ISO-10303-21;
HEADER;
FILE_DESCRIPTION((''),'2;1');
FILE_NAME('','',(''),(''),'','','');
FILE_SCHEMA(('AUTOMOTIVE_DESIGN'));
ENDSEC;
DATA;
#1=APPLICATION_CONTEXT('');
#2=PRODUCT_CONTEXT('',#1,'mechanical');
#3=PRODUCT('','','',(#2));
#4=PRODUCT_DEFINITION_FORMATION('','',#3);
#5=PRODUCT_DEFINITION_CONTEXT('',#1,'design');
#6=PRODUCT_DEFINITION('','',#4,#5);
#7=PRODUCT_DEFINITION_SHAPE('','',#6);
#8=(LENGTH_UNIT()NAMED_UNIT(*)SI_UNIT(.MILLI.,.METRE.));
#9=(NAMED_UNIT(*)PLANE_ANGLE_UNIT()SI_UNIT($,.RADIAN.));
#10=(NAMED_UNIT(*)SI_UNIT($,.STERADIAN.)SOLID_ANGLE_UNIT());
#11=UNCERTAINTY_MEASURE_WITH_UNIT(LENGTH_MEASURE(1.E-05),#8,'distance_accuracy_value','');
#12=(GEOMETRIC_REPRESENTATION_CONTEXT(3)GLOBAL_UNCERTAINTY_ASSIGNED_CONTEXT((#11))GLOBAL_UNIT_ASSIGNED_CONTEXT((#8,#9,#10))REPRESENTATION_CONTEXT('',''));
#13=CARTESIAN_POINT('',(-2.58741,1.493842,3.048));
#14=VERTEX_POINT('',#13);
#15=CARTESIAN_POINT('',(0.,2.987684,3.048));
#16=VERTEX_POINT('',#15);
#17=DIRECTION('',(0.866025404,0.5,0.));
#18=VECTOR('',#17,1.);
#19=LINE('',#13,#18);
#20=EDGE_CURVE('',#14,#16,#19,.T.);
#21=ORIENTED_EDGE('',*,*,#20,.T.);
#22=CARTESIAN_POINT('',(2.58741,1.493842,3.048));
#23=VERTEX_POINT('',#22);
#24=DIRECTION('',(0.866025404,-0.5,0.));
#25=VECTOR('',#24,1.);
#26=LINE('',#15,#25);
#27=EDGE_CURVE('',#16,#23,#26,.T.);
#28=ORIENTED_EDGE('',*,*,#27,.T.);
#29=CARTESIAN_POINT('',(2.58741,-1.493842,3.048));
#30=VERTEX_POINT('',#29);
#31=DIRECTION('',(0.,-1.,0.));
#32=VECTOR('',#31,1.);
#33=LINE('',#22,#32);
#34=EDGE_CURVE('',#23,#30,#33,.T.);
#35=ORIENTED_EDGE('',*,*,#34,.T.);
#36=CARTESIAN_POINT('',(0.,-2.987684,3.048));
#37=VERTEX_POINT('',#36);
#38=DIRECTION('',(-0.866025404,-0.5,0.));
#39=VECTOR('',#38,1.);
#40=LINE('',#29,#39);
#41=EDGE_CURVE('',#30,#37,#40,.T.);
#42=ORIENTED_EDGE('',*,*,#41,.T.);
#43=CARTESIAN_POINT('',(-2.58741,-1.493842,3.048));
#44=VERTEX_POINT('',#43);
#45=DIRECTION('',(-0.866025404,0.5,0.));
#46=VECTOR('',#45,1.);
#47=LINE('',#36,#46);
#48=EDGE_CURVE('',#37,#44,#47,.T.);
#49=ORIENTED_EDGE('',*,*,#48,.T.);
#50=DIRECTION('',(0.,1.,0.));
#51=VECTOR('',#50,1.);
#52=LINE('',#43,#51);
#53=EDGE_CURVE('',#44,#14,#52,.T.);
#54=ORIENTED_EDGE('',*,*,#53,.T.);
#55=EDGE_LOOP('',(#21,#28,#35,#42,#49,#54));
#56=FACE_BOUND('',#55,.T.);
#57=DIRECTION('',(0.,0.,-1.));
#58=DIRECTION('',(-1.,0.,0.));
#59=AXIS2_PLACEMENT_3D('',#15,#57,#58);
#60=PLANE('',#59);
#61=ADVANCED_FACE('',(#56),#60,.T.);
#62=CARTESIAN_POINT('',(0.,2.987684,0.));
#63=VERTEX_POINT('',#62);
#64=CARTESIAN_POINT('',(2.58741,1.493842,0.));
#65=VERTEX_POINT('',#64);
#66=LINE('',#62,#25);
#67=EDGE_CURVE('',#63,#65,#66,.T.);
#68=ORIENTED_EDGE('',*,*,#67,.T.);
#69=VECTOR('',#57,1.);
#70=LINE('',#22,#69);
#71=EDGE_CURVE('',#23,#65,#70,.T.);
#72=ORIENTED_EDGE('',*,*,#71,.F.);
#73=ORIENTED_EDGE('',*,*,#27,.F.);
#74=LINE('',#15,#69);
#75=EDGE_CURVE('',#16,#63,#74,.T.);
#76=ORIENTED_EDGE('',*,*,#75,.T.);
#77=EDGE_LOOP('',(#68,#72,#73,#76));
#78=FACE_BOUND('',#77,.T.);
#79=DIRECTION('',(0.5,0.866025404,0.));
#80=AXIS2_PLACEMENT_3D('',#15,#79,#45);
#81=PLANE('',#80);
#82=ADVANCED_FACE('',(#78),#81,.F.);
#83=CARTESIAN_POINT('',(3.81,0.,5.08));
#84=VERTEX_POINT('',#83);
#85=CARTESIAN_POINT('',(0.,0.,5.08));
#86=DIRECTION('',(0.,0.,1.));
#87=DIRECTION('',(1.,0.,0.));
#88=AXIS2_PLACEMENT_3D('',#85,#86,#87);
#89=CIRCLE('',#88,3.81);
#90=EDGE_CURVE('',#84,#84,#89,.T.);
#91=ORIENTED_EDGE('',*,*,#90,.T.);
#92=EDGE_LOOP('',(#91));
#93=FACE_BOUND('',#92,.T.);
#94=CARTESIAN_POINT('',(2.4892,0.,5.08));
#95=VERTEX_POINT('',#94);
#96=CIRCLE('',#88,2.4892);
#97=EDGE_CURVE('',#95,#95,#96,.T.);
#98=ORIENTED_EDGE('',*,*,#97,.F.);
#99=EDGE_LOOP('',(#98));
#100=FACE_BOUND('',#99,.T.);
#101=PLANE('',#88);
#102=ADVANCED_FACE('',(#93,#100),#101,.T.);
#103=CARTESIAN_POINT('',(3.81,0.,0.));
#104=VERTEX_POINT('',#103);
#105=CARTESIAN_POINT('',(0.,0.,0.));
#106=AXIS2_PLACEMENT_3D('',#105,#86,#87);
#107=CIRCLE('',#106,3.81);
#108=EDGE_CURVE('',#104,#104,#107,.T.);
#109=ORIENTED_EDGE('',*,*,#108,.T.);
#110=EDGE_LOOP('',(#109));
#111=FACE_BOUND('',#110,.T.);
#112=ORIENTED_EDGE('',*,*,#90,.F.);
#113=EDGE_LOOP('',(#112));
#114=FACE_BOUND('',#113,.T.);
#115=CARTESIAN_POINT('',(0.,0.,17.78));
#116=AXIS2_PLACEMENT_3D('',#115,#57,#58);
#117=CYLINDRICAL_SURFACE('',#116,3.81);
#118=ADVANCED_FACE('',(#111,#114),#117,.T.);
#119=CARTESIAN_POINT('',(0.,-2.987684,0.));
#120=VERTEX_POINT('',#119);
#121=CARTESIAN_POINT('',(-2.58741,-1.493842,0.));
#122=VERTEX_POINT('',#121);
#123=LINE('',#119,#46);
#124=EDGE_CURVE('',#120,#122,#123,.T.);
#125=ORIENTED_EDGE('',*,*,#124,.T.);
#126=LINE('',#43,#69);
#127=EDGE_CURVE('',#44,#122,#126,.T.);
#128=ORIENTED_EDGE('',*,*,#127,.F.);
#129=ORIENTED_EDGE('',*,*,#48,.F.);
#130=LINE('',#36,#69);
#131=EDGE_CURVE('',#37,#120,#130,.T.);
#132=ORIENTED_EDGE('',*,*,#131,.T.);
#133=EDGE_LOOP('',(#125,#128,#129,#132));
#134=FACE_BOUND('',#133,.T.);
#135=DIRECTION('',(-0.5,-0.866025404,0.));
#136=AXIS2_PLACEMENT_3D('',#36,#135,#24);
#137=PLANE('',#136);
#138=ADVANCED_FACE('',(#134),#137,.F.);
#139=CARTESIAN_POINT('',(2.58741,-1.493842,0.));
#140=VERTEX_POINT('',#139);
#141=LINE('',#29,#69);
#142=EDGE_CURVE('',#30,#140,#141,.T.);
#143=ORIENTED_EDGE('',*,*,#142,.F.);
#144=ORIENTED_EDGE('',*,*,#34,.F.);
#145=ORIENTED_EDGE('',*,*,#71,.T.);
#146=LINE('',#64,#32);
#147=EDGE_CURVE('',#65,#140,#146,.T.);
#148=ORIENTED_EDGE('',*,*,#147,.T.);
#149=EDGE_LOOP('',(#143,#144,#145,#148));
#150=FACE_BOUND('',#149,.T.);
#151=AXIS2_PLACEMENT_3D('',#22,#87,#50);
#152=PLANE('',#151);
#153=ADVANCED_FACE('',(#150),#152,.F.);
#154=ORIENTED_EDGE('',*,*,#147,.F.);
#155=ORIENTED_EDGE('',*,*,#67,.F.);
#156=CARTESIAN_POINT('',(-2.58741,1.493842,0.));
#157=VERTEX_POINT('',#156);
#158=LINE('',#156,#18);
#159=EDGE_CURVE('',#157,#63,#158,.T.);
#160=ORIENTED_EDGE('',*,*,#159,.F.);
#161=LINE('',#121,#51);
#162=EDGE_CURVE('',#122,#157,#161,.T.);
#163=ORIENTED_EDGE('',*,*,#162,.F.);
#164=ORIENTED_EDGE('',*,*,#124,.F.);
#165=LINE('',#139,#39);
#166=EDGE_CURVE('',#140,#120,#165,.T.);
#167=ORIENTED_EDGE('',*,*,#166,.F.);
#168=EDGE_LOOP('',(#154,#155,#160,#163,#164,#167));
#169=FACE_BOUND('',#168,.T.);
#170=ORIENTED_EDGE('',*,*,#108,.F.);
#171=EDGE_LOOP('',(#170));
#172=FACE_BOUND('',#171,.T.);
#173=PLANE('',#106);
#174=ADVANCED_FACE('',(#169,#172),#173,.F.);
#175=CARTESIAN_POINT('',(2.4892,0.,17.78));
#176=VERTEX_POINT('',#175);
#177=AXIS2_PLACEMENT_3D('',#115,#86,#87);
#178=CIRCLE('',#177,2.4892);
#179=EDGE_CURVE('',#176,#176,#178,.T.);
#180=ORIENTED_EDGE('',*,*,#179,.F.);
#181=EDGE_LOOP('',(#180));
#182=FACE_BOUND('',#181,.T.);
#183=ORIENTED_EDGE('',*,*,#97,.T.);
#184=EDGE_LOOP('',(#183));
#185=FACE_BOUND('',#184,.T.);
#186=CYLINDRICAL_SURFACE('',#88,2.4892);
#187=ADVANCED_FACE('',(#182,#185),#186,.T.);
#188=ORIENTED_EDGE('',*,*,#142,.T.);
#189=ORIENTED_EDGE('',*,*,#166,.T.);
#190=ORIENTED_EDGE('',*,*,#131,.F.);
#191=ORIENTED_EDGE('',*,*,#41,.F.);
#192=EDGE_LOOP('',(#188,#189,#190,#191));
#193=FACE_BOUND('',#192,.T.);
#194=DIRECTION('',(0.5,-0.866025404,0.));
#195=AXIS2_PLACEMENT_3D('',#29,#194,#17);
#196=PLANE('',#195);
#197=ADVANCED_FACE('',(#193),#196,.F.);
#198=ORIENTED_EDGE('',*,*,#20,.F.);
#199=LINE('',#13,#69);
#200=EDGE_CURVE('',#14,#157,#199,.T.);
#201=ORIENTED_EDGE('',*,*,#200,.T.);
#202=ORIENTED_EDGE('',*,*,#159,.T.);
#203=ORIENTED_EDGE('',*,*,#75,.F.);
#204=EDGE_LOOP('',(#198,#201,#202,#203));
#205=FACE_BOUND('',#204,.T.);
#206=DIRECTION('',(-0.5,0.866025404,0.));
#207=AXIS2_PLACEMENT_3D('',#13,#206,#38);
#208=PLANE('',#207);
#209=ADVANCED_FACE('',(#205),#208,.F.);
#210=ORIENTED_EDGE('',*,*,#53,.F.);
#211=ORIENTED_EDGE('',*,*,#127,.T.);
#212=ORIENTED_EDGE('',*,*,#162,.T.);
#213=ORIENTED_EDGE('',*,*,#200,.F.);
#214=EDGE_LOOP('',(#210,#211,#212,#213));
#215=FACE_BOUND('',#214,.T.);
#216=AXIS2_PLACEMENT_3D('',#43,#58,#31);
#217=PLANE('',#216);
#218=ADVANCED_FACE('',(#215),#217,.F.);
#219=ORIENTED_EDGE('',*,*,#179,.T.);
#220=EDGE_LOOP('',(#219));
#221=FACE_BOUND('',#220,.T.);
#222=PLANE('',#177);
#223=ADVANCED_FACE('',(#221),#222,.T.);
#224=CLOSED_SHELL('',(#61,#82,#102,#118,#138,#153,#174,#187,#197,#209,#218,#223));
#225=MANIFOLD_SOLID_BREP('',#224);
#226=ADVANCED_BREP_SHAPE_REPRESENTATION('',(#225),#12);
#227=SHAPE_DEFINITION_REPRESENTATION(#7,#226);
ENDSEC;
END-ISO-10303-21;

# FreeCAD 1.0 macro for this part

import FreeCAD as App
import Part
import Sketcher
Q = App.Units.Quantity


def add_polygon(sketch, points):
    """Adds a closed chain of lines whose ends are joined by coincident constraints."""
    first, n = sketch.GeometryCount, len(points)
    for a, b in zip(points, points[1:] + points[:1]):
        sketch.addGeometry(Part.LineSegment(App.Vector(*a, 0), App.Vector(*b, 0)), False)
    for i in range(n):
        sketch.addConstraint(Sketcher.Constraint("Coincident", first + i, 2, first + (i + 1) % n, 1))

doc = App.newDocument("Part")
params = doc.addObject("Spreadsheet::Sheet", "Params")
for row, (alias, value) in enumerate([
    ("sketch1_diameter", "0.3 in"),
    ("pad1_length", "0.7 in"),
    ("sketch2_diameter", "0.196 in"),
    ("pocket1_length", "0.5 in"),
    ("pocket2_length", "0.12 in"),
], start=1):
    params.set(f"A{row}", alias)
    params.set(f"B{row}", "=" + value)
    params.setAlias(f"B{row}", alias)

body = doc.addObject("PartDesign::Body", "Body")

# Sketch on XY plane
sketch1 = doc.addObject("Sketcher::SketchObject", "Sketch")
body.addObject(sketch1)
sketch1.AttachmentSupport = (doc.XY_Plane, [""])
sketch1.MapMode = "FlatFace"
sketch1.addGeometry(Part.Circle(App.Vector(0, 0, 0), App.Vector(0, 0, 1), 3.8), False)
sketch1.addConstraint(Sketcher.Constraint("Coincident", 0, 3, -1, 1))
sketch1.addConstraint(Sketcher.Constraint("Diameter", 0, Q("0.3 in")))
sketch1.setExpression("Constraints[1]", "Params.sketch1_diameter")
pad1 = doc.addObject("PartDesign::Pad", "Pad")
body.addObject(pad1)
pad1.Profile = sketch1
pad1.setExpression("Length", "Params.pad1_length")

# Sketch on XY plane
sketch2 = doc.addObject("Sketcher::SketchObject", "Sketch001")
body.addObject(sketch2)
sketch2.AttachmentSupport = (doc.XY_Plane, [""])
sketch2.MapMode = "FlatFace"
sketch2.AttachmentOffset = App.Placement(App.Vector(0, 0, 0.7 * 25.4), App.Rotation())
add_polygon(sketch2, [(-6.9, 6.9), (-6.9, -6.9), (6.9, -6.9), (6.9, 6.9)])  # lines 0-3
sketch2.addGeometry(Part.Circle(App.Vector(0, 0, 0), App.Vector(0, 0, 1), 2.5), False)  # 4
sketch2.addConstraint(Sketcher.Constraint("Vertical", 0))
sketch2.addConstraint(Sketcher.Constraint("Horizontal", 1))
sketch2.addConstraint(Sketcher.Constraint("Vertical", 2))
sketch2.addConstraint(Sketcher.Constraint("Horizontal", 3))
sketch2.addConstraint(Sketcher.Constraint("Coincident", 4, 3, -1, 1))
sketch2.addConstraint(Sketcher.Constraint("Symmetric", 0, 2, 2, 2, -1, 1))
sketch2.addConstraint(Sketcher.Constraint("Equal", 3, 0))
sketch2.addConstraint(Sketcher.Constraint("Diameter", 4, Q("0.196 in")))
sketch2.addConstraint(Sketcher.Constraint("DistanceX", 1, 1, 1, 2, Q("13.778 mm")))
sketch2.setExpression("Constraints[11]", "Params.sketch2_diameter")
pocket1 = doc.addObject("PartDesign::Pocket", "Pocket")
body.addObject(pocket1)
pocket1.Profile = sketch2
pocket1.setExpression("Length", "Params.pocket1_length")

# Sketch on XY plane
sketch3 = doc.addObject("Sketcher::SketchObject", "Sketch002")
body.addObject(sketch3)
sketch3.AttachmentSupport = (doc.XY_Plane, [""])
sketch3.MapMode = "FlatFace"
add_polygon(sketch3, [(0, 3), (2.6, 1.5), (2.6, -1.5), (0, -3), (-2.6, -1.5), (-2.6, 1.5)])  # lines 0-5
sketch3.addConstraint(Sketcher.Constraint("Vertical", 1))
sketch3.addConstraint(Sketcher.Constraint("Vertical", 4))
sketch3.addConstraint(Sketcher.Constraint("Symmetric", 0, 2, 3, 2, -1, 1))
sketch3.addConstraint(Sketcher.Constraint("Symmetric", 2, 2, 5, 2, -1, 1))
sketch3.addConstraint(Sketcher.Constraint("PointOnObject", 2, 2, -2))
sketch3.addConstraint(Sketcher.Constraint("Parallel", 2, 5))
sketch3.addConstraint(Sketcher.Constraint("Horizontal", 1, 2, 3, 2))
sketch3.addConstraint(Sketcher.Constraint("Angle", 0, Q("-30 deg")))
sketch3.addConstraint(Sketcher.Constraint("DistanceY", 1, 2, 1, 1, Q("2.987684 mm")))
sketch3.addConstraint(Sketcher.Constraint("DistanceX", -1, 1, 0, 2, Q("2.58741 mm")))
pocket2 = doc.addObject("PartDesign::Pocket", "Pocket001")
body.addObject(pocket2)
pocket2.Profile = sketch3
pocket2.setExpression("Length", "Params.pocket2_length")
pocket2.Reversed = True

doc.recompute()
